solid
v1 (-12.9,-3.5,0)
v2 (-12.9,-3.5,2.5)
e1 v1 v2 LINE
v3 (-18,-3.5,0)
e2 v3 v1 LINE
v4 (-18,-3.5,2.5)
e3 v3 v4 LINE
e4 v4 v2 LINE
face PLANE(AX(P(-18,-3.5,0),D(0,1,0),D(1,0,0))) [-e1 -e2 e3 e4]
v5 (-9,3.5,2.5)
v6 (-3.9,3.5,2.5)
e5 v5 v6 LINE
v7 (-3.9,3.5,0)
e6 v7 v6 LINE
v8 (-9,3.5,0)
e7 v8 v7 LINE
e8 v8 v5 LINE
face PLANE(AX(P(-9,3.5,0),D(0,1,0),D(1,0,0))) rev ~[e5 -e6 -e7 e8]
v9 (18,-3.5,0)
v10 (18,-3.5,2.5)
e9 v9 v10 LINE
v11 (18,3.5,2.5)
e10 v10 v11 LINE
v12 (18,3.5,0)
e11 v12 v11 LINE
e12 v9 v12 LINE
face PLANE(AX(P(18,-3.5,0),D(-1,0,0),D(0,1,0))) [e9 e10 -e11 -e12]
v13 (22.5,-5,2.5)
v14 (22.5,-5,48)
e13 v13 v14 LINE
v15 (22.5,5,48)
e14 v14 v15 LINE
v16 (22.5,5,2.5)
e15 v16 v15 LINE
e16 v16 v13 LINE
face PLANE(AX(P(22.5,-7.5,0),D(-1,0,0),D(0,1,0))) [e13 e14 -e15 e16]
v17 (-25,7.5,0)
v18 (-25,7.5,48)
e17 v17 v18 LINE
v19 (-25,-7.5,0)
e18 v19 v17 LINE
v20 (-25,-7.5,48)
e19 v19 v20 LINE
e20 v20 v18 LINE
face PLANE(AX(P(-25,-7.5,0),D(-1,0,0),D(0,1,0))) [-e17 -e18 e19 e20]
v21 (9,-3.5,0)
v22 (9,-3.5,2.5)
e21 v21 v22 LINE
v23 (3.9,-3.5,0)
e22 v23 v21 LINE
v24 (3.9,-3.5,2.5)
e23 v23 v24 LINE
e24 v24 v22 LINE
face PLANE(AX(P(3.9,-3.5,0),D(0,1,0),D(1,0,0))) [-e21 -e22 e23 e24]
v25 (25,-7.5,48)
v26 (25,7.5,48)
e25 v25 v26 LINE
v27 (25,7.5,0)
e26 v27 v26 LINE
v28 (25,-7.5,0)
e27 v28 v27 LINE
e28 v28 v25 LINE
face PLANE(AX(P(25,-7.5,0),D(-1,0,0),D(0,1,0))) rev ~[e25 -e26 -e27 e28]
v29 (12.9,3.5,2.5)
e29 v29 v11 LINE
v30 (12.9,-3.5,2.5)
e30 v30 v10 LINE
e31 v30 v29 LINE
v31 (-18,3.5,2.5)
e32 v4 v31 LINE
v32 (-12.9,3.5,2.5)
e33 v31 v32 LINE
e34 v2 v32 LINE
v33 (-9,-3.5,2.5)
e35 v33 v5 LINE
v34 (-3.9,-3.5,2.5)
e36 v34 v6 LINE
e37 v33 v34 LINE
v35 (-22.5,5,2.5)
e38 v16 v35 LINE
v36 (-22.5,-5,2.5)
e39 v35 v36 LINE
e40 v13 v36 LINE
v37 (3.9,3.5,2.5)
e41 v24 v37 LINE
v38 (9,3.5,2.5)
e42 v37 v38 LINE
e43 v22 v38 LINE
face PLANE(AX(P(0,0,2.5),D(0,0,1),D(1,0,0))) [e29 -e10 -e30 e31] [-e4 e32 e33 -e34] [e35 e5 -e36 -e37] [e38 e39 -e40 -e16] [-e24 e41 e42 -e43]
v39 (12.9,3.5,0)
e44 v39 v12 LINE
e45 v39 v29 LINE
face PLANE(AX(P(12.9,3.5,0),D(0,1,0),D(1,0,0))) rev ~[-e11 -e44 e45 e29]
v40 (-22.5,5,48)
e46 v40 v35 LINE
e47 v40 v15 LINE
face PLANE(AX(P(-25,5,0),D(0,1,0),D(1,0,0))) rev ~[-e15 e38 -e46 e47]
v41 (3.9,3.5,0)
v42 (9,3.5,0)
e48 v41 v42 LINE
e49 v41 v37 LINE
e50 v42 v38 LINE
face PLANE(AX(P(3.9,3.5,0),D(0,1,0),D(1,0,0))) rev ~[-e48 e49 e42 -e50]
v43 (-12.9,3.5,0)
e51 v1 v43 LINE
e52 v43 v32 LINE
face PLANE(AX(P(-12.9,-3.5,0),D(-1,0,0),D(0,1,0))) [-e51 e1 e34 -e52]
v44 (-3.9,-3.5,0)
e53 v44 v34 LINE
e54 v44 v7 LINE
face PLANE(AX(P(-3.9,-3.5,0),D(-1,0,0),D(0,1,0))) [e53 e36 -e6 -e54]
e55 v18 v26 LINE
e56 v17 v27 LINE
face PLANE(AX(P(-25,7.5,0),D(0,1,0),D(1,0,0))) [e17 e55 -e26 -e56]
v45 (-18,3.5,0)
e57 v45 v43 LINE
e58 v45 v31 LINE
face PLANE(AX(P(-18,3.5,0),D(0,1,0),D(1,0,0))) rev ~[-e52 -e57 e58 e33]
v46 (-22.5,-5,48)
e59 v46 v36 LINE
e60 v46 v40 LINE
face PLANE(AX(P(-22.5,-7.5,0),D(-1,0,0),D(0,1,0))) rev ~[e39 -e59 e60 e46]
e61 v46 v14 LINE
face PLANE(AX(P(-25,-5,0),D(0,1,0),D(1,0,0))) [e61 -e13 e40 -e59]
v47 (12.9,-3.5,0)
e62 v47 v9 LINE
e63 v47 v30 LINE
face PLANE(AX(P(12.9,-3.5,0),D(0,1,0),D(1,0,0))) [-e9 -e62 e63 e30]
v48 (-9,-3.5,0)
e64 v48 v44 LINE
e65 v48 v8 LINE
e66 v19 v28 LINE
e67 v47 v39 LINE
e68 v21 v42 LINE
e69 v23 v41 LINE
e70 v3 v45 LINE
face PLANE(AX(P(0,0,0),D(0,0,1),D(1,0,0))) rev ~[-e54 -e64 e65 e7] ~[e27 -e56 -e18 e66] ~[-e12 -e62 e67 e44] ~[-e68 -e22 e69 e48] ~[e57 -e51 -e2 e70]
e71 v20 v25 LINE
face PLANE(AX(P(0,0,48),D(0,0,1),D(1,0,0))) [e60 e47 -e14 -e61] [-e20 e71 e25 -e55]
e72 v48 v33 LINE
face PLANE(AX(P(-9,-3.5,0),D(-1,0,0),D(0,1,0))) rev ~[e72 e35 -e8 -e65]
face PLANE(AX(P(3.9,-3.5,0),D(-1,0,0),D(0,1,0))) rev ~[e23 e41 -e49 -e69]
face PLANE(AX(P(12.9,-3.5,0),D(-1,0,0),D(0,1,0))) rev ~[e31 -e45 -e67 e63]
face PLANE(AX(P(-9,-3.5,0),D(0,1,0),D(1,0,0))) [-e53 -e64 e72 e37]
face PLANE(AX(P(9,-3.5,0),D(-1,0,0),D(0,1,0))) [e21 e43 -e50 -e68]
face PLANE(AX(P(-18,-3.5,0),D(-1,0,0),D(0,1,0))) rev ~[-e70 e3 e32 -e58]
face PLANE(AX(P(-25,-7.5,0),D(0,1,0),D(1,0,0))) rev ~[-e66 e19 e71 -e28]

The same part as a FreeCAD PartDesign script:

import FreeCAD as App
import Part
import Sketcher


def faces_at(feature, points):
    """Names of the faces that lie closest to the given points."""
    faces = feature.Shape.Faces
    near = lambda p: min(range(len(faces)), key=lambda i: faces[i].distToShape(Part.Vertex(*p))[0])
    return sorted({f"Face{near(p) + 1}" for p in points})


def add_polygon(sketch, points):
    """Adds a closed chain of lines whose ends are joined by coincident constraints."""
    first, n = sketch.GeometryCount, len(points)
    for a, b in zip(points, points[1:] + points[:1]):
        sketch.addGeometry(Part.LineSegment(App.Vector(*a, 0), App.Vector(*b, 0)), False)
    for i in range(n):
        sketch.addConstraint(Sketcher.Constraint("Coincident", first + i, 2, first + (i + 1) % n, 1))

doc = App.newDocument("Part")
body = doc.addObject("PartDesign::Body", "Body")

sketch1 = body.newObject("Sketcher::SketchObject", "Sketch")
sketch1.AttachmentSupport = (doc.getObject("XY_Plane"), [""])
sketch1.MapMode = "FlatFace"
add_polygon(sketch1, [(-25, 8), (-25, -8), (25, -8), (25, 8)])
add_polygon(sketch1, [(-13, -4), (-18, -4), (-18, 4), (-13, 4)])
add_polygon(sketch1, [(-4, -4), (-9, -4), (-9, 4), (-4, 4)])
add_polygon(sketch1, [(9, -4), (4, -4), (4, 4), (9, 4)])
add_polygon(sketch1, [(18, -4), (13, -4), (13, 4), (18, 4)])
sketch1.addConstraint([
    Sketcher.Constraint("Vertical", 0),
    Sketcher.Constraint("Horizontal", 1),
    Sketcher.Constraint("Vertical", 2),
    Sketcher.Constraint("Horizontal", 3),
    Sketcher.Constraint("Horizontal", 4),
    Sketcher.Constraint("Vertical", 5),
    Sketcher.Constraint("Horizontal", 6),
    Sketcher.Constraint("Vertical", 7),
    Sketcher.Constraint("Horizontal", 8),
    Sketcher.Constraint("Vertical", 9),
    Sketcher.Constraint("Horizontal", 10),
    Sketcher.Constraint("Vertical", 11),
    Sketcher.Constraint("Horizontal", 12),
    Sketcher.Constraint("Vertical", 13),
    Sketcher.Constraint("Horizontal", 14),
    Sketcher.Constraint("Vertical", 15),
    Sketcher.Constraint("Horizontal", 16),
    Sketcher.Constraint("Vertical", 17),
    Sketcher.Constraint("Horizontal", 18),
    Sketcher.Constraint("Vertical", 19),
    Sketcher.Constraint("Symmetric", 0, 2, 2, 2, -1, 1),
    Sketcher.Constraint("Symmetric", 10, 2, 12, 2, -1, 1),
    Sketcher.Constraint("Symmetric", 8, 2, 14, 2, -1, 1),
    Sketcher.Constraint("Symmetric", 6, 2, 16, 2, -1, 1),
    Sketcher.Constraint("Symmetric", 4, 2, 18, 2, -1, 1),
    Sketcher.Constraint("Horizontal", 7, 2, 8, 2),
    Sketcher.Constraint("Horizontal", 6, 2, 9, 2),
    Sketcher.Constraint("Horizontal", 11, 2, 12, 2),
    Sketcher.Constraint("Equal", 6, 8),
    Sketcher.Constraint("DistanceX", 1, 1, 1, 2, 50.0),
    Sketcher.Constraint("DistanceY", 0, 2, 0, 1, 15.0),
    Sketcher.Constraint("DistanceY", 5, 1, 5, 2, 7.0),
    Sketcher.Constraint("DistanceX", 4, 2, 4, 1, 5.1),
    Sketcher.Constraint("DistanceX", 4, 2, -1, 1, 18.0),
    Sketcher.Constraint("DistanceX", 8, 2, -1, 1, 9.0),
])
pad1 = body.newObject("PartDesign::Pad", "Pad")
pad1.Profile = sketch1
pad1.Length = 48
doc.recompute()

thickness = body.newObject("PartDesign::Thickness", "Thickness")
thickness.Base = (pad1, faces_at(pad1, [
    (0, 0, 48),
    (-9, 0, 24),
    (-3.9, 0, 24),
    (-6.45, -3.5, 24),
    (-15.45, -3.5, 24),
    (6.45, -3.5, 24),
    (15.45, -3.5, 24),
    (12.9, 0, 24),
    (3.9, 0, 24),
    (-18, 0, 24),
    (-15.45, 3.5, 24),
    (-6.45, 3.5, 24),
    (6.45, 3.5, 24),
    (15.45, 3.5, 24),
    (18, 0, 24),
    (9, 0, 24),
    (-12.9, 0, 24),
]))
thickness.Value = 2.5
thickness.Reversed = True
thickness.Join = "Arc"

doc.recompute()
